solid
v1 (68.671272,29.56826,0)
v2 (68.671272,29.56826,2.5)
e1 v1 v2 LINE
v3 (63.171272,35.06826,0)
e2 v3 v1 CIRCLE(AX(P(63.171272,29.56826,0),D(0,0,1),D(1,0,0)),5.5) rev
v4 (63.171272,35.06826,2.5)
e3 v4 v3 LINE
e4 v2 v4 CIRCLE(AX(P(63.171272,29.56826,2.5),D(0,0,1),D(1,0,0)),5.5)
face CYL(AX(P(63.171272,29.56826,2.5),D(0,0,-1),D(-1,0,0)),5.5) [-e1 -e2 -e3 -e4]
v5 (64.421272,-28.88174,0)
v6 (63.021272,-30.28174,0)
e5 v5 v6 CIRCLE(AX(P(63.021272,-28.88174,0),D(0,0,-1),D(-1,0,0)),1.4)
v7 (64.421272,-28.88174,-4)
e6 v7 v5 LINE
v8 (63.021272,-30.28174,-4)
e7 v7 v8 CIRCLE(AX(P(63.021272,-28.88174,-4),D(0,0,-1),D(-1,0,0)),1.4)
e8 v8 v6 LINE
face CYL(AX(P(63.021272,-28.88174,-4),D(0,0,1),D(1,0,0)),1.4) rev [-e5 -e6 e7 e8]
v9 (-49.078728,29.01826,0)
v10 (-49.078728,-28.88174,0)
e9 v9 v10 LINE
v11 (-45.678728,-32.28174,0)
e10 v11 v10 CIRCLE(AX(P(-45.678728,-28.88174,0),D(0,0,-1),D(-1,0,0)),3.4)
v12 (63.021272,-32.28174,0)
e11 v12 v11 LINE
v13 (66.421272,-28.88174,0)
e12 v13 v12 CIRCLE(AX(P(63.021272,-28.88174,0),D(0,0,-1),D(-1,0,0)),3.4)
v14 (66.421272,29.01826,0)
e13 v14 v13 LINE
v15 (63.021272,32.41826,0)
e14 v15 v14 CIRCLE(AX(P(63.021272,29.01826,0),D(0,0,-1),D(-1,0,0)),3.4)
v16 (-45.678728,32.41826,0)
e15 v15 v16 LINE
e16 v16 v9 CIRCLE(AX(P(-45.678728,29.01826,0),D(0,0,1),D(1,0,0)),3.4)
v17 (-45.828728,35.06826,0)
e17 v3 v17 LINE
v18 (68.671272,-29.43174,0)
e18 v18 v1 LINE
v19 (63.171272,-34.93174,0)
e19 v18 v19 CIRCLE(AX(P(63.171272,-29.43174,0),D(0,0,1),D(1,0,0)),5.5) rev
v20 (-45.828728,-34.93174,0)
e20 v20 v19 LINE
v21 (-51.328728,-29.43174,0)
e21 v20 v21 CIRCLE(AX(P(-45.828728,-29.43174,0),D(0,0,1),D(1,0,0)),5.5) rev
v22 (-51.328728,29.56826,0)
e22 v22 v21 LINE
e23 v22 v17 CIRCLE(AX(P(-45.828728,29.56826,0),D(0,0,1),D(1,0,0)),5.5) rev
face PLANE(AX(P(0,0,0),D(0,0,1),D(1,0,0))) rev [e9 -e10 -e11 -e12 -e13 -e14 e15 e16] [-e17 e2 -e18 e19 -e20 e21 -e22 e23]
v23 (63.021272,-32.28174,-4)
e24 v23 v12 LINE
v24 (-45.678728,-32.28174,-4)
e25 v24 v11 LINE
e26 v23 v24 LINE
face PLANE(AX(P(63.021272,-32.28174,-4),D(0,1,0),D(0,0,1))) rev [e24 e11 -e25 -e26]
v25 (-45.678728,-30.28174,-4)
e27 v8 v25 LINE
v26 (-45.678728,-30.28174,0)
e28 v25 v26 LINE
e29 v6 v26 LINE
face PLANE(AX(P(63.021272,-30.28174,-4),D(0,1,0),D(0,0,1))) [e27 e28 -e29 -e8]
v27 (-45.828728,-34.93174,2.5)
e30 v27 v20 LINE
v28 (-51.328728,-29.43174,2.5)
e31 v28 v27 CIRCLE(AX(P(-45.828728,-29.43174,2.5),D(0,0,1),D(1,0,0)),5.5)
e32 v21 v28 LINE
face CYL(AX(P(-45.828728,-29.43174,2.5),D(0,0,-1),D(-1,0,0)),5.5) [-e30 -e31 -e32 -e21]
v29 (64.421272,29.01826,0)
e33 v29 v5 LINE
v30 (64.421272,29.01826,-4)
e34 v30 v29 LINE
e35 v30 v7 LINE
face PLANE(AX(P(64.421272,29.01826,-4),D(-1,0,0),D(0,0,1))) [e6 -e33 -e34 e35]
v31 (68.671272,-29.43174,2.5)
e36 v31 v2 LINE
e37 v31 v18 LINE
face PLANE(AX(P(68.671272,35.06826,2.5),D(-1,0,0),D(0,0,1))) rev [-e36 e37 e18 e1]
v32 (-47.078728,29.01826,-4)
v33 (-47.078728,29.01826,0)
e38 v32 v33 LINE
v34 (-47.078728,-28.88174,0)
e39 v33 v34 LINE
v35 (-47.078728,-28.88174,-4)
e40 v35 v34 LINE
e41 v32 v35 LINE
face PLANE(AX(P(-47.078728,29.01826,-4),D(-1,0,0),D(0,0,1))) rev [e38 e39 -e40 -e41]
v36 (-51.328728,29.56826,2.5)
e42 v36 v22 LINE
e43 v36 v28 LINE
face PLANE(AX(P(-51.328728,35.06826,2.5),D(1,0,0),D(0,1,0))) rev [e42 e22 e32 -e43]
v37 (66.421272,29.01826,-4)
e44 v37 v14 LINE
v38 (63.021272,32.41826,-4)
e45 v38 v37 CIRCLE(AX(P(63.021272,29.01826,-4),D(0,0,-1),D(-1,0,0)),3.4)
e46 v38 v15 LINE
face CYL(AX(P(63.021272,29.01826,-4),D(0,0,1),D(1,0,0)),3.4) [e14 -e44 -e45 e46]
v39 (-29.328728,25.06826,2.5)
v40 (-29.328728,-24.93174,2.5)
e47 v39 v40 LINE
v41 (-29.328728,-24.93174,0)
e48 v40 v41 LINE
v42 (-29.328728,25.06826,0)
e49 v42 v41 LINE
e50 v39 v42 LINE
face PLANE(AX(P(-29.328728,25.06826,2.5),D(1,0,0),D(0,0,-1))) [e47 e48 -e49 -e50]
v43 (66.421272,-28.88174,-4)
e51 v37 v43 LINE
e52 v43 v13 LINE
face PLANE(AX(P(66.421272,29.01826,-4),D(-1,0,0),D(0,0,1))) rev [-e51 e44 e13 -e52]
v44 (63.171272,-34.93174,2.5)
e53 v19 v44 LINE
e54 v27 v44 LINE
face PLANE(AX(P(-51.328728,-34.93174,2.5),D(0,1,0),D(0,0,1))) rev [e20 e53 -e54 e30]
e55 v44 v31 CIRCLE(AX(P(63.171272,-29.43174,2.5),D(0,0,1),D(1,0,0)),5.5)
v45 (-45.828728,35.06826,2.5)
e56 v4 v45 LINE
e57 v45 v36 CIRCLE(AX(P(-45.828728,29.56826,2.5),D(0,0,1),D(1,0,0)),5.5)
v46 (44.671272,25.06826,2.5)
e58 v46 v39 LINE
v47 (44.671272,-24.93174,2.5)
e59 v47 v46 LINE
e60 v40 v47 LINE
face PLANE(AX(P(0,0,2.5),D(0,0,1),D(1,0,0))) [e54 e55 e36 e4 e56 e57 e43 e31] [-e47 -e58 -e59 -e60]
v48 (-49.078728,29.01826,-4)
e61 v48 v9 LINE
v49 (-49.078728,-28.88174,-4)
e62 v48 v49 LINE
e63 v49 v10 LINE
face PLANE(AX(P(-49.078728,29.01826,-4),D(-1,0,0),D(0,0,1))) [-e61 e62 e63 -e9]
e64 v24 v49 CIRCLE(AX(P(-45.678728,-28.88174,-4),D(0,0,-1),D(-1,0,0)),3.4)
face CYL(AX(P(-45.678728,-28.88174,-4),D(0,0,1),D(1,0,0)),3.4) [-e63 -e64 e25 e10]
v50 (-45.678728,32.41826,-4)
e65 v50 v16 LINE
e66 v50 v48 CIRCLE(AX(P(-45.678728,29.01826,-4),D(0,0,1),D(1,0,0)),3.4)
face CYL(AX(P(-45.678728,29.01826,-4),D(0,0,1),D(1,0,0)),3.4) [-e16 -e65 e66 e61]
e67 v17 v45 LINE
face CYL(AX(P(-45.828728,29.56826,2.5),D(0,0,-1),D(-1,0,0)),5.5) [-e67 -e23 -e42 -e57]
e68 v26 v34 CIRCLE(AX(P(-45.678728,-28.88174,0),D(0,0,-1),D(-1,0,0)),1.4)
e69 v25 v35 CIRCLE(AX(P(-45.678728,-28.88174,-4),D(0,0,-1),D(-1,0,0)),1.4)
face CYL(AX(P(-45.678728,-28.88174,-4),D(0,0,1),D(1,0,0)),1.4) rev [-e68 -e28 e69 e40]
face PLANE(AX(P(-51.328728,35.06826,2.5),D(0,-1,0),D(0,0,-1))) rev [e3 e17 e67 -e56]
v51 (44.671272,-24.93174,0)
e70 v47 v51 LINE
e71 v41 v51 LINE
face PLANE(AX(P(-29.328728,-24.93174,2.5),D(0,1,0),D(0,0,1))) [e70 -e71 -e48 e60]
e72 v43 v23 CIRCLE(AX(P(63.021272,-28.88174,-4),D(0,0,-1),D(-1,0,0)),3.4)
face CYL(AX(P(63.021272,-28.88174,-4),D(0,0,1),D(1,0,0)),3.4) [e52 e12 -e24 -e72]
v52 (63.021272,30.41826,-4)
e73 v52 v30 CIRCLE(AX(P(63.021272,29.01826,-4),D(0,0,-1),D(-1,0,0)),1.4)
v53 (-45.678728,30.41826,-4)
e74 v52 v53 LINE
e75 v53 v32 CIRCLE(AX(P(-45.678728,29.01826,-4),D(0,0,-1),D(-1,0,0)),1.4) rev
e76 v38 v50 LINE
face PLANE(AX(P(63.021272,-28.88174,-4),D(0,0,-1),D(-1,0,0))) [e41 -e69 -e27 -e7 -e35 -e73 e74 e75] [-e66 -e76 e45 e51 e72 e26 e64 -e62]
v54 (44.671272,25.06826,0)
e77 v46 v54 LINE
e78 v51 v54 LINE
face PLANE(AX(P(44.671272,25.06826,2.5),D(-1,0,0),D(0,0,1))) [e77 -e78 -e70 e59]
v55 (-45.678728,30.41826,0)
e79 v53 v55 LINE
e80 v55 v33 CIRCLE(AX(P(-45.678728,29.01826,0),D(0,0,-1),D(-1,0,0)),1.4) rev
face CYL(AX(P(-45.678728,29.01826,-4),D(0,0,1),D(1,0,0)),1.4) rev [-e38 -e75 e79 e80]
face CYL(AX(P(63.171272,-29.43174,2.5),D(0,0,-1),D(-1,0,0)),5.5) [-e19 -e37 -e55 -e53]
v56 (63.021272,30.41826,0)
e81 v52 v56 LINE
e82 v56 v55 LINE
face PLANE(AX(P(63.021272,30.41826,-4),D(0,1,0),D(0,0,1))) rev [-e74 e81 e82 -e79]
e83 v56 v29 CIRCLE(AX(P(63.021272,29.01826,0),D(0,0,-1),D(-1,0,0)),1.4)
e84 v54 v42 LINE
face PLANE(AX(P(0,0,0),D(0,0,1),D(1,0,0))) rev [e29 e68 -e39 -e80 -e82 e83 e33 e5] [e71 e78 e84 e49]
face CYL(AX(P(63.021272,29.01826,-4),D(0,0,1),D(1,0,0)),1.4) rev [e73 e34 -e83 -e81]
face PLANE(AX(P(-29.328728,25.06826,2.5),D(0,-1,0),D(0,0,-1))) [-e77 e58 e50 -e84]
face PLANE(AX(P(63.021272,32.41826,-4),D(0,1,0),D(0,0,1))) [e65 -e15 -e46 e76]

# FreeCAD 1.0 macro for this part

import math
import FreeCAD as App
import Part
import Sketcher
Q = App.Units.Quantity


def edges_at(feature, points):
    """Names of the edges that pass closest to the given points."""
    edges = feature.Shape.Edges
    near = lambda p: min(range(len(edges)), key=lambda i: edges[i].distToShape(Part.Vertex(*p))[0])
    return sorted({f"Edge{near(p) + 1}" for p in points})


def add_polygon(sketch, points):
    """Adds a closed chain of lines whose ends are joined by coincident constraints."""
    first, n = sketch.GeometryCount, len(points)
    for a, b in zip(points, points[1:] + points[:1]):
        sketch.addGeometry(Part.LineSegment(App.Vector(*a, 0), App.Vector(*b, 0)), False)
    for i in range(n):
        sketch.addConstraint(Sketcher.Constraint("Coincident", first + i, 2, first + (i + 1) % n, 1))

doc = App.newDocument("Part")
body = doc.addObject("PartDesign::Body", "Body")

# Sketch on XY plane
sketch1 = body.newObject("Sketcher::SketchObject", "Sketch")
sketch1.AttachmentSupport = (doc.getObject("XY_Plane"), [""])
sketch1.MapMode = "FlatFace"
add_polygon(sketch1, [(-51.328728, 35.06826), (-51.328728, -34.93174), (68.671272, -34.93174), (68.671272, 35.06826)])  # lines 0-3
add_polygon(sketch1, [(44.671272, -24.93174), (-29.328728, -24.93174), (-29.328728, 25.06826), (44.671272, 25.06826)])  # lines 4-7
sketch1.addConstraint([
    Sketcher.Constraint("Vertical", 0),
    Sketcher.Constraint("Horizontal", 1),
    Sketcher.Constraint("Vertical", 2),
    Sketcher.Constraint("Horizontal", 3),
    Sketcher.Constraint("Horizontal", 4),
    Sketcher.Constraint("Vertical", 5),
    Sketcher.Constraint("Horizontal", 6),
    Sketcher.Constraint("Vertical", 7),
    Sketcher.Constraint("DistanceX", 1, 1, 1, 2, Q("120 mm")),
    Sketcher.Constraint("DistanceX", 4, 2, 4, 1, Q("74 mm")),
    Sketcher.Constraint("DistanceY", 0, 2, 0, 1, Q("70 mm")),
    Sketcher.Constraint("DistanceY", 5, 1, 5, 2, Q("50 mm")),
    Sketcher.Constraint("DistanceX", 0, 2, 4, 2, Q("22 mm")),
    Sketcher.Constraint("DistanceY", 0, 2, 4, 2, Q("10 mm")),
    Sketcher.Constraint("DistanceY", 0, 2, -1, 1, Q("34.93174 mm")),
    Sketcher.Constraint("DistanceX", 0, 2, -1, 1, Q("51.328728 mm")),
])
pad1 = body.newObject("PartDesign::Pad", "Pad")
pad1.Profile = sketch1
pad1.Length = 2.5
doc.recompute()

fillet = body.newObject("PartDesign::Fillet", "Fillet")
fillet.Base = (pad1, edges_at(pad1, [
    (-51.329, 35.068, 1.25),
    (68.671, 35.068, 1.25),
    (68.671, -34.932, 1.25),
    (-51.329, -34.932, 1.25),
]))
fillet.Radius = 5.5

# Sketch on XY plane
sketch2 = body.newObject("Sketcher::SketchObject", "Sketch001")
sketch2.AttachmentSupport = (doc.getObject("XY_Plane"), [""])
sketch2.MapMode = "FlatFace"
sketch2.addGeometry([
    Part.LineSegment(App.Vector(-45.678728, 32.41826, 0), App.Vector(63.021272, 32.41826, 0)),  # 0
    Part.ArcOfCircle(Part.Circle(App.Vector(63.021272, 29.01826, 0), App.Vector(0, 0, 1), 3.4), math.radians(0), math.radians(90)),  # 1
    Part.LineSegment(App.Vector(66.421272, 29.01826, 0), App.Vector(66.421272, -28.88174, 0)),  # 2
    Part.ArcOfCircle(Part.Circle(App.Vector(63.021272, -28.88174, 0), App.Vector(0, 0, 1), 3.4), math.radians(-90), math.radians(0)),  # 3
    Part.LineSegment(App.Vector(63.021272, -32.28174, 0), App.Vector(-45.678728, -32.28174, 0)),  # 4
    Part.ArcOfCircle(Part.Circle(App.Vector(-45.678728, -28.88174, 0), App.Vector(0, 0, 1), 3.4), math.radians(180), math.radians(270)),  # 5
    Part.LineSegment(App.Vector(-49.078728, -28.88174, 0), App.Vector(-49.078728, 29.01826, 0)),  # 6
    Part.ArcOfCircle(Part.Circle(App.Vector(-45.678728, 29.01826, 0), App.Vector(0, 0, 1), 3.4), math.radians(90), math.radians(180)),  # 7
    Part.LineSegment(App.Vector(63.021272, 30.41826, 0), App.Vector(-45.678728, 30.41826, 0)),  # 8
    Part.ArcOfCircle(Part.Circle(App.Vector(-45.678728, 29.01826, 0), App.Vector(0, 0, 1), 1.4), math.radians(90), math.radians(180)),  # 9
    Part.LineSegment(App.Vector(-47.078728, 29.01826, 0), App.Vector(-47.078728, -28.88174, 0)),  # 10
    Part.ArcOfCircle(Part.Circle(App.Vector(-45.678728, -28.88174, 0), App.Vector(0, 0, 1), 1.4), math.radians(-180), math.radians(-90)),  # 11
    Part.LineSegment(App.Vector(-45.678728, -30.28174, 0), App.Vector(63.021272, -30.28174, 0)),  # 12
    Part.ArcOfCircle(Part.Circle(App.Vector(63.021272, -28.88174, 0), App.Vector(0, 0, 1), 1.4), math.radians(-90), math.radians(0)),  # 13
    Part.LineSegment(App.Vector(64.421272, -28.88174, 0), App.Vector(64.421272, 29.01826, 0)),  # 14
    Part.ArcOfCircle(Part.Circle(App.Vector(63.021272, 29.01826, 0), App.Vector(0, 0, 1), 1.4), math.radians(0), math.radians(90)),  # 15
], False)
sketch2.addConstraint([
    Sketcher.Constraint("Tangent", 0, 2, 1, 2),
    Sketcher.Constraint("Tangent", 1, 1, 2, 1),
    Sketcher.Constraint("Tangent", 2, 2, 3, 2),
    Sketcher.Constraint("Tangent", 3, 1, 4, 1),
    Sketcher.Constraint("Tangent", 4, 2, 5, 2),
    Sketcher.Constraint("Tangent", 5, 1, 6, 1),
    Sketcher.Constraint("Tangent", 6, 2, 7, 2),
    Sketcher.Constraint("Tangent", 7, 1, 0, 1),
    Sketcher.Constraint("Tangent", 8, 2, 9, 1),
    Sketcher.Constraint("Tangent", 9, 2, 10, 1),
    Sketcher.Constraint("Tangent", 10, 2, 11, 1),
    Sketcher.Constraint("Tangent", 11, 2, 12, 1),
    Sketcher.Constraint("Tangent", 12, 2, 13, 1),
    Sketcher.Constraint("Tangent", 13, 2, 14, 1),
    Sketcher.Constraint("Tangent", 14, 2, 15, 1),
    Sketcher.Constraint("Tangent", 15, 2, 8, 1),
    Sketcher.Constraint("Horizontal", 0),
    Sketcher.Constraint("Vertical", 2),
    Sketcher.Constraint("Horizontal", 4),
    Sketcher.Constraint("Vertical", 6),
    Sketcher.Constraint("Horizontal", 8),
    Sketcher.Constraint("Vertical", 10),
    Sketcher.Constraint("Horizontal", 12),
    Sketcher.Constraint("Vertical", 14),
    Sketcher.Constraint("Coincident", 9, 3, 7, 3),
    Sketcher.Constraint("Coincident", 11, 3, 5, 3),
    Sketcher.Constraint("Coincident", 13, 3, 3, 3),
    Sketcher.Constraint("Equal", 1, 3),
    Sketcher.Constraint("Equal", 3, 5),
    Sketcher.Constraint("Equal", 5, 7),
    Sketcher.Constraint("Equal", 13, 15),
    Sketcher.Constraint("Radius", 1, Q("3.4 mm")),
    Sketcher.Constraint("Radius", 9, Q("1.4 mm")),
    Sketcher.Constraint("DistanceX", 0, 1, 0, 2, Q("108.7 mm")),
    Sketcher.Constraint("DistanceY", 2, 2, 2, 1, Q("57.9 mm")),
    Sketcher.Constraint("DistanceY", -1, 1, 1, 3, Q("29.01826 mm")),
    Sketcher.Constraint("DistanceX", -1, 1, 1, 3, Q("63.021272 mm")),
])
pad2 = body.newObject("PartDesign::Pad", "Pad001")
pad2.Profile = sketch2
pad2.Length = 4
pad2.Reversed = True

doc.recompute()
